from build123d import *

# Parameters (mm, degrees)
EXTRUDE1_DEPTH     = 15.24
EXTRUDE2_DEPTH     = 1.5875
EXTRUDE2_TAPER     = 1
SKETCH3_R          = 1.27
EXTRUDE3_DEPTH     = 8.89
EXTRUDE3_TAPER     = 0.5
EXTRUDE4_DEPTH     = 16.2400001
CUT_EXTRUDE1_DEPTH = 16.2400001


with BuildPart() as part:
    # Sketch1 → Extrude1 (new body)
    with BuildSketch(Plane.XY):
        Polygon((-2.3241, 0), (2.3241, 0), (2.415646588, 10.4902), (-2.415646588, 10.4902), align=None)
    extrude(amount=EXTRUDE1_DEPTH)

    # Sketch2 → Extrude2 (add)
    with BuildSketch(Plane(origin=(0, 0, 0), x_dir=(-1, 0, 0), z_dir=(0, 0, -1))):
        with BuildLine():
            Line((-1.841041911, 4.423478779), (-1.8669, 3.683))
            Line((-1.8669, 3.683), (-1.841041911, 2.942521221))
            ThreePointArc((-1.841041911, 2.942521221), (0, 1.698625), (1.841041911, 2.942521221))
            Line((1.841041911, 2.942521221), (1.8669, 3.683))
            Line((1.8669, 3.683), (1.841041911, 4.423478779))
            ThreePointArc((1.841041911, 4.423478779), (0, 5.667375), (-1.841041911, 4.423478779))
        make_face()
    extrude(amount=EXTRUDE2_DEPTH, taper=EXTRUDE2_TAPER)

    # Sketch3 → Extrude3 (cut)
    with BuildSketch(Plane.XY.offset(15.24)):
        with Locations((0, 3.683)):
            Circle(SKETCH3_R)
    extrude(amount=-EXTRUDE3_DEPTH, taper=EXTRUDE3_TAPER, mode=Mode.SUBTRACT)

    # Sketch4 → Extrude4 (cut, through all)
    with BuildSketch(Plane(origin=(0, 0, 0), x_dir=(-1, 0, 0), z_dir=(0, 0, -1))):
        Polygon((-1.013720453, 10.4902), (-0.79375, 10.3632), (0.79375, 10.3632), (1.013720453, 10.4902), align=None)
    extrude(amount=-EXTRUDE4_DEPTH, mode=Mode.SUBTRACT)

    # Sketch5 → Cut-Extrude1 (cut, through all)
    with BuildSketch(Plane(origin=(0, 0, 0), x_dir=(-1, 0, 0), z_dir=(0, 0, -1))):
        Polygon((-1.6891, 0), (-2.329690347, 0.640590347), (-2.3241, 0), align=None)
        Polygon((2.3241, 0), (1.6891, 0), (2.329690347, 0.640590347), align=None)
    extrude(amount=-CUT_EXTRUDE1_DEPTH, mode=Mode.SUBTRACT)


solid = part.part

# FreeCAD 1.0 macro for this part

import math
import FreeCAD as App
import Part
import Sketcher
Q = App.Units.Quantity

doc = App.newDocument("Part")
body = doc.addObject("PartDesign::Body", "Body")

# Sketch on XY plane
sketch1 = body.newObject("Sketcher::SketchObject", "Sketch")
sketch1.AttachmentSupport = (doc.getObject("XY_Plane"), [""])
sketch1.MapMode = "FlatFace"
sketch1.addGeometry(Part.LineSegment(App.Vector(-2.3, 0, 0), App.Vector(2.3, 0, 0)), False)
sketch1.addGeometry(Part.LineSegment(App.Vector(2.3, 0, 0), App.Vector(2.4, 10.5, 0)), False)
sketch1.addGeometry(Part.LineSegment(App.Vector(2.4, 10.5, 0), App.Vector(-2.4, 10.5, 0)), False)
sketch1.addGeometry(Part.LineSegment(App.Vector(-2.4, 10.5, 0), App.Vector(-2.3, 0, 0)), False)
sketch1.addConstraint(Sketcher.Constraint("Coincident", 0, 2, 1, 1))
sketch1.addConstraint(Sketcher.Constraint("Coincident", 1, 2, 2, 1))
sketch1.addConstraint(Sketcher.Constraint("Coincident", 2, 2, 3, 1))
sketch1.addConstraint(Sketcher.Constraint("Coincident", 3, 2, 0, 1))
sketch1.addConstraint(Sketcher.Constraint("Horizontal", 0))
sketch1.addConstraint(Sketcher.Constraint("Horizontal", 2))
sketch1.addConstraint(Sketcher.Constraint("Symmetric", 0, 2, 3, 2, -1, 1))
sketch1.addConstraint(Sketcher.Constraint("Equal", 1, 3))
sketch1.addConstraint(Sketcher.Constraint("Angle", 1, Q("89.5 deg")))
sketch1.addConstraint(Sketcher.Constraint("DistanceX", 0, 1, 0, 2, Q("0.183 in")))
sketch1.addConstraint(Sketcher.Constraint("DistanceY", -1, 1, 1, 2, Q("0.413 in")))
pad1 = body.newObject("PartDesign::Pad", "Pad")
pad1.Profile = sketch1
pad1.Length = Q("0.6 in")

# Sketch on XY plane
sketch2 = body.newObject("Sketcher::SketchObject", "Sketch001")
sketch2.AttachmentSupport = (doc.getObject("XY_Plane"), [""])
sketch2.MapMode = "FlatFace"
sketch2.addGeometry(Part.LineSegment(App.Vector(1.8, 4.4, 0), App.Vector(1.9, 3.7, 0)), False)
sketch2.addGeometry(Part.LineSegment(App.Vector(1.9, 3.7, 0), App.Vector(1.8, 2.9, 0)), False)
sketch2.addGeometry(Part.ArcOfCircle(Part.Circle(App.Vector(0, 3.7, 0), App.Vector(0, 0, 1), 2), math.radians(-158), math.radians(-22)), False)
sketch2.addGeometry(Part.LineSegment(App.Vector(-1.8, 2.9, 0), App.Vector(-1.9, 3.7, 0)), False)
sketch2.addGeometry(Part.LineSegment(App.Vector(-1.9, 3.7, 0), App.Vector(-1.8, 4.4, 0)), False)
sketch2.addGeometry(Part.ArcOfCircle(Part.Circle(App.Vector(0, 3.7, 0), App.Vector(0, 0, 1), 2), math.radians(22), math.radians(158)), False)
sketch2.addConstraint(Sketcher.Constraint("Coincident", 0, 2, 1, 1))
sketch2.addConstraint(Sketcher.Constraint("Coincident", 1, 2, 2, 2))
sketch2.addConstraint(Sketcher.Constraint("Coincident", 2, 1, 3, 1))
sketch2.addConstraint(Sketcher.Constraint("Coincident", 3, 2, 4, 1))
sketch2.addConstraint(Sketcher.Constraint("Coincident", 4, 2, 5, 2))
sketch2.addConstraint(Sketcher.Constraint("Coincident", 5, 1, 0, 1))
sketch2.addConstraint(Sketcher.Constraint("Coincident", 5, 3, 2, 3))
sketch2.addConstraint(Sketcher.Constraint("Equal", 2, 5))
sketch2.addConstraint(Sketcher.Constraint("Symmetric", 1, 2, 2, 1, -2))
sketch2.addConstraint(Sketcher.Constraint("Symmetric", 0, 2, 3, 2, -2))
sketch2.addConstraint(Sketcher.Constraint("Parallel", 0, 3))
sketch2.addConstraint(Sketcher.Constraint("Parallel", 1, 4))
sketch2.addConstraint(Sketcher.Constraint("Horizontal", 5, 3, 0, 2))
sketch2.addConstraint(Sketcher.Constraint("Angle", 0, Q("-88 deg")))
sketch2.addConstraint(Sketcher.Constraint("Radius", 2, Q("0.078125 in")))
sketch2.addConstraint(Sketcher.Constraint("DistanceY", -1, 1, 2, 3, Q("0.145 in")))
sketch2.addConstraint(Sketcher.Constraint("DistanceX", 3, 2, 0, 2, Q("0.147 in")))
pad2 = body.newObject("PartDesign::Pad", "Pad001")
pad2.Profile = sketch2
pad2.Length = Q("0.0625 in")
pad2.Reversed = True
pad2.TaperAngle = -1

# Sketch on XY plane
sketch3 = body.newObject("Sketcher::SketchObject", "Sketch002")
sketch3.AttachmentSupport = (doc.getObject("XY_Plane"), [""])
sketch3.MapMode = "FlatFace"
sketch3.AttachmentOffset = App.Placement(App.Vector(0, 0, 0.6 * 25.4), App.Rotation())
sketch3.addGeometry(Part.Circle(App.Vector(0, 3.7, 0), App.Vector(0, 0, 1), 1.3), False)
sketch3.addConstraint(Sketcher.Constraint("PointOnObject", 0, 3, -2))
sketch3.addConstraint(Sketcher.Constraint("Diameter", 0, Q("0.1 in")))
sketch3.addConstraint(Sketcher.Constraint("DistanceY", -1, 1, 0, 3, Q("0.145 in")))
pocket1 = body.newObject("PartDesign::Pocket", "Pocket")
pocket1.Profile = sketch3
pocket1.Length = Q("0.35 in")
pocket1.TaperAngle = -0.5

# Sketch on XY plane
sketch4 = body.newObject("Sketcher::SketchObject", "Sketch003")
sketch4.AttachmentSupport = (doc.getObject("XY_Plane"), [""])
sketch4.MapMode = "FlatFace"
sketch4.addGeometry(Part.LineSegment(App.Vector(1.01, 10.49, 0), App.Vector(0.79, 10.36, 0)), False)
sketch4.addGeometry(Part.LineSegment(App.Vector(0.79, 10.36, 0), App.Vector(-0.79, 10.36, 0)), False)
sketch4.addGeometry(Part.LineSegment(App.Vector(-0.79, 10.36, 0), App.Vector(-1.01, 10.49, 0)), False)
sketch4.addGeometry(Part.LineSegment(App.Vector(-1.01, 10.49, 0), App.Vector(1.01, 10.49, 0)), False)
sketch4.addConstraint(Sketcher.Constraint("Coincident", 0, 2, 1, 1))
sketch4.addConstraint(Sketcher.Constraint("Coincident", 1, 2, 2, 1))
sketch4.addConstraint(Sketcher.Constraint("Coincident", 2, 2, 3, 1))
sketch4.addConstraint(Sketcher.Constraint("Coincident", 3, 2, 0, 1))
sketch4.addConstraint(Sketcher.Constraint("Horizontal", 1))
sketch4.addConstraint(Sketcher.Constraint("Horizontal", 3))
sketch4.addConstraint(Sketcher.Constraint("Equal", 0, 2))
sketch4.addConstraint(Sketcher.Constraint("Angle", 0, Q("-150 deg")))
sketch4.addConstraint(Sketcher.Constraint("Distance", 0, Q("0.01 in")))
sketch4.addConstraint(Sketcher.Constraint("DistanceX", 1, 2, 1, 1, Q("0.0625 in")))
sketch4.addConstraint(Sketcher.Constraint("DistanceX", -1, 1, 0, 2, Q("0.03125 in")))
sketch4.addConstraint(Sketcher.Constraint("DistanceY", -1, 1, 0, 2, Q("0.408 in")))
pocket2 = body.newObject("PartDesign::Pocket", "Pocket001")
pocket2.Profile = sketch4
pocket2.Type = "ThroughAll"
pocket2.Reversed = True

# Sketch on XY plane
sketch5 = body.newObject("Sketcher::SketchObject", "Sketch004")
sketch5.AttachmentSupport = (doc.getObject("XY_Plane"), [""])
sketch5.MapMode = "FlatFace"
sketch5.addGeometry(Part.LineSegment(App.Vector(1.7, 0, 0), App.Vector(2.3, 0.6, 0)), False)
sketch5.addGeometry(Part.LineSegment(App.Vector(2.3, 0.6, 0), App.Vector(2.3, 0, 0)), False)
sketch5.addGeometry(Part.LineSegment(App.Vector(2.3, 0, 0), App.Vector(1.7, 0, 0)), False)
sketch5.addGeometry(Part.LineSegment(App.Vector(-1.7, 0, 0), App.Vector(-2.3, 0, 0)), False)
sketch5.addGeometry(Part.LineSegment(App.Vector(-2.3, 0, 0), App.Vector(-2.3, 0.6, 0)), False)
sketch5.addGeometry(Part.LineSegment(App.Vector(-2.3, 0.6, 0), App.Vector(-1.7, 0, 0)), False)
sketch5.addConstraint(Sketcher.Constraint("Coincident", 0, 2, 1, 1))
sketch5.addConstraint(Sketcher.Constraint("Coincident", 1, 2, 2, 1))
sketch5.addConstraint(Sketcher.Constraint("Coincident", 2, 2, 0, 1))
sketch5.addConstraint(Sketcher.Constraint("Coincident", 3, 2, 4, 1))
sketch5.addConstraint(Sketcher.Constraint("Coincident", 4, 2, 5, 1))
sketch5.addConstraint(Sketcher.Constraint("Coincident", 5, 2, 3, 1))
sketch5.addConstraint(Sketcher.Constraint("Horizontal", 2))
sketch5.addConstraint(Sketcher.Constraint("Horizontal", 3))
sketch5.addConstraint(Sketcher.Constraint("Symmetric", 1, 2, 3, 2, -1, 1))
sketch5.addConstraint(Sketcher.Constraint("Symmetric", 0, 2, 4, 2, -2))
sketch5.addConstraint(Sketcher.Constraint("Symmetric", 2, 2, 5, 2, -2))
sketch5.addConstraint(Sketcher.Constraint("Perpendicular", 0, 5))
sketch5.addConstraint(Sketcher.Constraint("Angle", 1, Q("-90.5 deg")))
sketch5.addConstraint(Sketcher.Constraint("DistanceX", 2, 2, 2, 1, Q("0.025 in")))
sketch5.addConstraint(Sketcher.Constraint("DistanceX", 3, 2, 2, 2, Q("0.158 in")))
pocket3 = body.newObject("PartDesign::Pocket", "Pocket002")
pocket3.Profile = sketch5
pocket3.Type = "ThroughAll"
pocket3.Reversed = True

doc.recompute()
